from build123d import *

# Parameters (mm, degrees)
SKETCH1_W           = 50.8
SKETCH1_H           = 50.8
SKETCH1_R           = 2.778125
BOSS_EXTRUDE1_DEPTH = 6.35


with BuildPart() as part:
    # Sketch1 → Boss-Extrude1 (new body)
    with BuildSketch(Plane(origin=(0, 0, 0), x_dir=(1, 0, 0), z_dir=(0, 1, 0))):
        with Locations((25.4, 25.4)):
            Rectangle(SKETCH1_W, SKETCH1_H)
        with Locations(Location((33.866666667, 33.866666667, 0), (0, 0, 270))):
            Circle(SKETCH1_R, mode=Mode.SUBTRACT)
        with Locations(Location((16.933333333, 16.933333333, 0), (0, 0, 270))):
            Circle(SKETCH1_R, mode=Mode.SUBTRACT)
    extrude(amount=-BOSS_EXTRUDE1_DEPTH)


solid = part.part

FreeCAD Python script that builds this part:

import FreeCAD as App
import Part
import Sketcher
from FreeCAD import Vector
Q = App.Units.Quantity

doc = App.newDocument("Part")
body = doc.addObject("PartDesign::Body", "Body")

# Sketch on XZ plane
sketch1 = body.newObject("Sketcher::SketchObject", "Sketch")
sketch1.AttachmentSupport = (doc.getObject("XZ_Plane"), [""])
sketch1.MapMode = "FlatFace"
sketch1.addGeometry([
    Part.LineSegment(Vector(0, -50.8, 0), Vector(0, 0, 0)),  # 0
    Part.LineSegment(Vector(0, 0, 0), Vector(50.8, 0, 0)),  # 1
    Part.LineSegment(Vector(50.8, 0, 0), Vector(50.8, -50.8, 0)),  # 2
    Part.LineSegment(Vector(50.8, -50.8, 0), Vector(0, -50.8, 0)),  # 3
    Part.Circle(Vector(16.9, -16.9, 0), Vector(0, 0, 1), 2.8),  # 4
    Part.Circle(Vector(33.9, -33.9, 0), Vector(0, 0, 1), 2.8),  # 5
], False)
sketch1.addConstraint([
    Sketcher.Constraint("Coincident", 0, 2, 1, 1),
    Sketcher.Constraint("Coincident", 1, 2, 2, 1),
    Sketcher.Constraint("Coincident", 2, 2, 3, 1),
    Sketcher.Constraint("Coincident", 3, 2, 0, 1),
    Sketcher.Constraint("Vertical", 0),
    Sketcher.Constraint("Horizontal", 1),
    Sketcher.Constraint("Vertical", 2),
    Sketcher.Constraint("Horizontal", 3),
    Sketcher.Constraint("Coincident", 0, 2, -1, 1),
    Sketcher.Constraint("Equal", 4, 5),
    Sketcher.Constraint("Equal", 3, 0),
    Sketcher.Constraint("DistanceX", 1, 1, 1, 2, Q("2 in")),
    Sketcher.Constraint("Diameter", 4, Q("0.21875 in")),
    Sketcher.Constraint("DistanceX", -1, 1, 4, 3, 16.933333),
    Sketcher.Constraint("DistanceY", 4, 3, -1, 1, 16.933333),
    Sketcher.Constraint("DistanceX", -1, 1, 5, 3, 33.866667),
    Sketcher.Constraint("DistanceY", 5, 3, -1, 1, 33.866667),
])
pad1 = body.newObject("PartDesign::Pad", "Pad")
pad1.Profile = sketch1
pad1.Length = Q("0.25 in")

doc.recompute()
